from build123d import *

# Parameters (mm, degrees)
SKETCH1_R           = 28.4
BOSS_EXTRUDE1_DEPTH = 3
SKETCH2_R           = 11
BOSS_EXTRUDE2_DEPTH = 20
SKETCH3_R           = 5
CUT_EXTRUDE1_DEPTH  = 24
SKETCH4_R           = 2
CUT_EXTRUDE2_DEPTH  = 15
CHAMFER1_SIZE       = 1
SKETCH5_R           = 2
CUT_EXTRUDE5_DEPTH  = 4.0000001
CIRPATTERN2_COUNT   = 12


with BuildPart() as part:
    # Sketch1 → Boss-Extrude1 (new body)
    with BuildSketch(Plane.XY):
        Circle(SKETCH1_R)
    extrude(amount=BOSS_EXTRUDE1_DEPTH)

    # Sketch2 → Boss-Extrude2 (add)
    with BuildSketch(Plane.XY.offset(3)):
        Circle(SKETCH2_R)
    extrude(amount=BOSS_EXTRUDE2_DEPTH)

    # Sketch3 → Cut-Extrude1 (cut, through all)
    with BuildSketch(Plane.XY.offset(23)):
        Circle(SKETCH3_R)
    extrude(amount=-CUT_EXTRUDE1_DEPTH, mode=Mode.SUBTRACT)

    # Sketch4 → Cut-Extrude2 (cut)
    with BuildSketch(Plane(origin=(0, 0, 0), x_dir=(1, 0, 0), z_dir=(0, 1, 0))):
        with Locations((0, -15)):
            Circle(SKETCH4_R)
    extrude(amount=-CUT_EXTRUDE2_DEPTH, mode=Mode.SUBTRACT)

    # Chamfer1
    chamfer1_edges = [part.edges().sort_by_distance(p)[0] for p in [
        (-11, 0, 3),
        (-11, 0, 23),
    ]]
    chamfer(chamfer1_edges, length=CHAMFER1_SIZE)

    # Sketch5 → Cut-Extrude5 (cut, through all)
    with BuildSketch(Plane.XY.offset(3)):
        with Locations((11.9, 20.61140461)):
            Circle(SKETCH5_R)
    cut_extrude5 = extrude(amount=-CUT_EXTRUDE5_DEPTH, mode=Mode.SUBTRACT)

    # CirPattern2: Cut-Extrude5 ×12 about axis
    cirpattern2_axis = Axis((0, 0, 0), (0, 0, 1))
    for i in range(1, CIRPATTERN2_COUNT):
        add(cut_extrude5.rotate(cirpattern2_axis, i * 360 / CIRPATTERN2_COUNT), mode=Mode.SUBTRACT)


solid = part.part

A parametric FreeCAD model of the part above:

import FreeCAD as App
import Part
import Sketcher
from FreeCAD import Vector
Q = App.Units.Quantity


def edges_at(feature, points):
    """Names of the edges that pass closest to the given points."""
    edges = feature.Shape.Edges
    near = lambda p: min(range(len(edges)), key=lambda i: edges[i].distToShape(Part.Vertex(*p))[0])
    return sorted({f"Edge{near(p) + 1}" for p in points})

doc = App.newDocument("Part")
body = doc.addObject("PartDesign::Body", "Body")

sketch1 = body.newObject("Sketcher::SketchObject", "Sketch")
sketch1.AttachmentSupport = (doc.getObject("XY_Plane"), [""])
sketch1.MapMode = "FlatFace"
sketch1.addGeometry(Part.Circle(Vector(0, 0, 0), Vector(0, 0, 1), 28), False)
sketch1.addConstraint(Sketcher.Constraint("Coincident", 0, 3, -1, 1))
sketch1.addConstraint(Sketcher.Constraint("Diameter", 0, Q("56.8 mm")))
pad1 = body.newObject("PartDesign::Pad", "Pad")
pad1.Profile = sketch1
pad1.Length = 3

sketch2 = body.newObject("Sketcher::SketchObject", "Sketch001")
sketch2.AttachmentSupport = (doc.getObject("XY_Plane"), [""])
sketch2.MapMode = "FlatFace"
sketch2.AttachmentOffset = App.Placement(Vector(0, 0, 3), App.Rotation())
sketch2.addGeometry(Part.Circle(Vector(0, 0, 0), Vector(0, 0, 1), 11), False)
sketch2.addConstraint(Sketcher.Constraint("Coincident", 0, 3, -1, 1))
sketch2.addConstraint(Sketcher.Constraint("Diameter", 0, Q("22 mm")))
pad2 = body.newObject("PartDesign::Pad", "Pad001")
pad2.Profile = sketch2
pad2.Length = 20

sketch3 = body.newObject("Sketcher::SketchObject", "Sketch002")
sketch3.AttachmentSupport = (doc.getObject("XY_Plane"), [""])
sketch3.MapMode = "FlatFace"
sketch3.AttachmentOffset = App.Placement(Vector(0, 0, 23), App.Rotation())
sketch3.addGeometry(Part.Circle(Vector(0, 0, 0), Vector(0, 0, 1), 5), False)
sketch3.addConstraint(Sketcher.Constraint("Coincident", 0, 3, -1, 1))
sketch3.addConstraint(Sketcher.Constraint("Diameter", 0, Q("10 mm")))
pocket1 = body.newObject("PartDesign::Pocket", "Pocket")
pocket1.Profile = sketch3
pocket1.Type = "ThroughAll"

sketch4 = body.newObject("Sketcher::SketchObject", "Sketch003")
sketch4.AttachmentSupport = (doc.getObject("XZ_Plane"), [""])
sketch4.MapMode = "FlatFace"
sketch4.addGeometry(Part.Circle(Vector(0, 15, 0), Vector(0, 0, 1), 2), False)
sketch4.addConstraint(Sketcher.Constraint("PointOnObject", 0, 3, -2))
sketch4.addConstraint(Sketcher.Constraint("Diameter", 0, Q("4 mm")))
sketch4.addConstraint(Sketcher.Constraint("DistanceY", -1, 1, 0, 3, Q("15 mm")))
pocket2 = body.newObject("PartDesign::Pocket", "Pocket001")
pocket2.Profile = sketch4
pocket2.Length = 15
pocket2.Reversed = True
doc.recompute()

chamfer = body.newObject("PartDesign::Chamfer", "Chamfer")
chamfer.Base = (pocket2, edges_at(pocket2, [(-11, 0, 3), (-11, 0, 23)]))
chamfer.Size = 1

sketch5 = body.newObject("Sketcher::SketchObject", "Sketch004")
sketch5.AttachmentSupport = (doc.getObject("XY_Plane"), [""])
sketch5.MapMode = "FlatFace"
sketch5.AttachmentOffset = App.Placement(Vector(0, 0, 3), App.Rotation())
sketch5.addGeometry(Part.Circle(Vector(11.9, 20.6, 0), Vector(0, 0, 1), 2), False)
sketch5.addConstraint(Sketcher.Constraint("Diameter", 0, Q("4 mm")))
sketch5.addConstraint(Sketcher.Constraint("DistanceX", -1, 1, 0, 3, Q("11.9 mm")))
sketch5.addConstraint(Sketcher.Constraint("DistanceY", -1, 1, 0, 3, Q("20.611405 mm")))
pocket3 = body.newObject("PartDesign::Pocket", "Pocket002")
pocket3.Profile = sketch5
pocket3.Type = "ThroughAll"
doc.recompute()

polarpattern = body.newObject("PartDesign::PolarPattern", "PolarPattern")
polarpattern.Originals = [pocket3]
polarpattern.Axis = (doc.getObject("Z_Axis"), [""])
polarpattern.Angle = 360
polarpattern.Occurrences = 12
body.Tip = polarpattern

doc.recompute()
